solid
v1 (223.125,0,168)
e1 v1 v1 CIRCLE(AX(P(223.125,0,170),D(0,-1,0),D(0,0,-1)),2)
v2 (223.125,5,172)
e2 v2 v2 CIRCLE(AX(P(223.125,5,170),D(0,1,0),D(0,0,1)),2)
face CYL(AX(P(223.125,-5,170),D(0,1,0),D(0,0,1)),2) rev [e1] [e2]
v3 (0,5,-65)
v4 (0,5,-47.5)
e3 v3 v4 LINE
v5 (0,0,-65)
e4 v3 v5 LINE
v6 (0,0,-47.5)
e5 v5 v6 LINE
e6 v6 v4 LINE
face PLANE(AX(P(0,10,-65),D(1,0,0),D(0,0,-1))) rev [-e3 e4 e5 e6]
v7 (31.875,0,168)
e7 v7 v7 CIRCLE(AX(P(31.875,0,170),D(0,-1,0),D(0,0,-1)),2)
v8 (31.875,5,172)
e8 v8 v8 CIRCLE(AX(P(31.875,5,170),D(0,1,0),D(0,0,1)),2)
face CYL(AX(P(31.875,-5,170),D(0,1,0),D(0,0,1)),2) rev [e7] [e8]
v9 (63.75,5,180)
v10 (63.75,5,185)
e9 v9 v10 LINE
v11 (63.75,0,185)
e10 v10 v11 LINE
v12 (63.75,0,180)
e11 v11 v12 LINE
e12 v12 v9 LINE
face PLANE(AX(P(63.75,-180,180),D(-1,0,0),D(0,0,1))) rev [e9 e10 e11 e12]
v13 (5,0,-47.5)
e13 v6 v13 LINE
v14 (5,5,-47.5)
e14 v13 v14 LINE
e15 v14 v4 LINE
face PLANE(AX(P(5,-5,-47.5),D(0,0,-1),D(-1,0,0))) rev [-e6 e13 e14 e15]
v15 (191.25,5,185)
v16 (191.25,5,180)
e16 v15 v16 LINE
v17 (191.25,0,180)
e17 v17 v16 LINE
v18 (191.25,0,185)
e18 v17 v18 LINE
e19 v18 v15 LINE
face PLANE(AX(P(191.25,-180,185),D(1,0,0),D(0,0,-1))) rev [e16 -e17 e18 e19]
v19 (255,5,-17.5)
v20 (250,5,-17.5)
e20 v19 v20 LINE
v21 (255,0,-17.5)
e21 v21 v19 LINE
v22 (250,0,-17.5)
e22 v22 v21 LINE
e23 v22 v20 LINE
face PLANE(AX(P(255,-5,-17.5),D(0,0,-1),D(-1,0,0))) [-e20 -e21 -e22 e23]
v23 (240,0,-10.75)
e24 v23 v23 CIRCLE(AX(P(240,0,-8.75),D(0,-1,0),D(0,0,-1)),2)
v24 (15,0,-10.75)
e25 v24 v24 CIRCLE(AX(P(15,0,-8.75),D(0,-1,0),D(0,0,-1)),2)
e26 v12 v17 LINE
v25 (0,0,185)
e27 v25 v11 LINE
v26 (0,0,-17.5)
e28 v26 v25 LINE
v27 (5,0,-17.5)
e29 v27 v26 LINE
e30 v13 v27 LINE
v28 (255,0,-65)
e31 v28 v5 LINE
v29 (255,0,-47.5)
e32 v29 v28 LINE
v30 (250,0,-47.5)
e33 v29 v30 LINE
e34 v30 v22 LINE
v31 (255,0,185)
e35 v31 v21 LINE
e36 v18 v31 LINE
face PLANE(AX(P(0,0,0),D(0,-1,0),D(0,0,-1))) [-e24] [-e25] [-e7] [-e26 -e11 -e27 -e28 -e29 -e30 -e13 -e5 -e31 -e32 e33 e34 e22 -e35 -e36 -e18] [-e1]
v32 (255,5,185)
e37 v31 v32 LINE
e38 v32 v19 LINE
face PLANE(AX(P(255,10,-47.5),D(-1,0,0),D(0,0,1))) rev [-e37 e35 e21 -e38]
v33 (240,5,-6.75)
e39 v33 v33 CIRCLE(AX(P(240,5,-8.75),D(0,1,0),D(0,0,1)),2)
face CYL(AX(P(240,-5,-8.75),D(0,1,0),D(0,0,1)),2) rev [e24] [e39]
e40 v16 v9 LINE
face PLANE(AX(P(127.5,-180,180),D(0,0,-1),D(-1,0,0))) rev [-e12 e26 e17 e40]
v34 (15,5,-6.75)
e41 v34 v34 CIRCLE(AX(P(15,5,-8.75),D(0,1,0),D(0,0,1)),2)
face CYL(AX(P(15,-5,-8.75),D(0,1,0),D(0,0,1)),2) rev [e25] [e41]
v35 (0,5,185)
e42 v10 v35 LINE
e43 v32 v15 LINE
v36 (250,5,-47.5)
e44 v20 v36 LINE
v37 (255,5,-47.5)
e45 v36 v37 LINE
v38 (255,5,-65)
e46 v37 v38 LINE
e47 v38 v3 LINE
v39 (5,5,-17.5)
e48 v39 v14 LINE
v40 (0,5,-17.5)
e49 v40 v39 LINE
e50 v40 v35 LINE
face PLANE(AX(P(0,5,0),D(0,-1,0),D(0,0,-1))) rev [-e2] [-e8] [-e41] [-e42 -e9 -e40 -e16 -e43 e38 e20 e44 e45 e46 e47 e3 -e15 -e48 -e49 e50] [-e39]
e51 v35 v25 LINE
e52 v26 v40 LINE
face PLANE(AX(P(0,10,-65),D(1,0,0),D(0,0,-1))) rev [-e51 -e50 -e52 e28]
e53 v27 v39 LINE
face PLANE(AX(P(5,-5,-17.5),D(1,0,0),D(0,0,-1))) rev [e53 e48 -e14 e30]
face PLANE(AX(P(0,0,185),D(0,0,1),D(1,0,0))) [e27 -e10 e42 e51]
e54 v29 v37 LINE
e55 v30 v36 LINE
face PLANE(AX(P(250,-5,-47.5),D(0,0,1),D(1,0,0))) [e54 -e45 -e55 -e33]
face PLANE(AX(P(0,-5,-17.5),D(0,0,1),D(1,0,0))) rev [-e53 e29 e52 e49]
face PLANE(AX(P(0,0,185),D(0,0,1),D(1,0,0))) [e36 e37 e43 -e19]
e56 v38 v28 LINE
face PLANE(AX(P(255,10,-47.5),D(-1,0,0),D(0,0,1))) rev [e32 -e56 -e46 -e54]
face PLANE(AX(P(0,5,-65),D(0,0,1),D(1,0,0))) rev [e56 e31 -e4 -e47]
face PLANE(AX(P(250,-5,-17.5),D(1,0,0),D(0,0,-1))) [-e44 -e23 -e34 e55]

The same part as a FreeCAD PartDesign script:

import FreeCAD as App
import Part
import Sketcher
Q = App.Units.Quantity

doc = App.newDocument("Part")
body = doc.addObject("PartDesign::Body", "Body")

sketch1 = body.newObject("Sketcher::SketchObject", "Sketch")
sketch1.AttachmentSupport = (doc.getObject("XZ_Plane"), [""])
sketch1.MapMode = "FlatFace"
sketch1.addGeometry([
    Part.LineSegment(App.Vector(0, -65, 0), App.Vector(0, 0, 0)),
    Part.LineSegment(App.Vector(0, 0, 0), App.Vector(255, 0, 0)),
    Part.LineSegment(App.Vector(255, 0, 0), App.Vector(255, -65, 0)),
    Part.LineSegment(App.Vector(255, -65, 0), App.Vector(0, -65, 0)),
], False)
sketch1.addConstraint([
    Sketcher.Constraint("Coincident", 0, 2, 1, 1),
    Sketcher.Constraint("Coincident", 1, 2, 2, 1),
    Sketcher.Constraint("Coincident", 2, 2, 3, 1),
    Sketcher.Constraint("Coincident", 3, 2, 0, 1),
    Sketcher.Constraint("Vertical", 0),
    Sketcher.Constraint("Horizontal", 1),
    Sketcher.Constraint("Vertical", 2),
    Sketcher.Constraint("Horizontal", 3),
    Sketcher.Constraint("Coincident", 0, 2, -1, 1),
    Sketcher.Constraint("DistanceX", 1, 1, 1, 2, Q("255 mm")),
    Sketcher.Constraint("DistanceY", 0, 1, 0, 2, Q("65 mm")),
])
pad1 = body.newObject("PartDesign::Pad", "Pad")
pad1.Profile = sketch1
pad1.Length = 5
pad1.Reversed = True

sketch2 = body.newObject("Sketcher::SketchObject", "Sketch001")
sketch2.AttachmentSupport = (doc.getObject("XZ_Plane"), [""])
sketch2.MapMode = "FlatFace"
sketch2.AttachmentOffset = App.Placement(App.Vector(0, 0, -5), App.Rotation())
sketch2.addGeometry([
    Part.LineSegment(App.Vector(261, -65, 0), App.Vector(255, -65, 0)),
    Part.LineSegment(App.Vector(255, -65, 0), App.Vector(255, 0, 0)),
    Part.LineSegment(App.Vector(255, 0, 0), App.Vector(261, 0, 0)),
    Part.LineSegment(App.Vector(261, 0, 0), App.Vector(261, -65, 0)),
    Part.LineSegment(App.Vector(-6, -65, 0), App.Vector(-6, 0, 0)),
    Part.LineSegment(App.Vector(-6, 0, 0), App.Vector(0, 0, 0)),
    Part.LineSegment(App.Vector(0, 0, 0), App.Vector(0, -65, 0)),
    Part.LineSegment(App.Vector(0, -65, 0), App.Vector(-6, -65, 0)),
], False)
sketch2.addConstraint([
    Sketcher.Constraint("Coincident", 0, 2, 1, 1),
    Sketcher.Constraint("Coincident", 1, 2, 2, 1),
    Sketcher.Constraint("Coincident", 2, 2, 3, 1),
    Sketcher.Constraint("Coincident", 3, 2, 0, 1),
    Sketcher.Constraint("Coincident", 4, 2, 5, 1),
    Sketcher.Constraint("Coincident", 5, 2, 6, 1),
    Sketcher.Constraint("Coincident", 6, 2, 7, 1),
    Sketcher.Constraint("Coincident", 7, 2, 4, 1),
    Sketcher.Constraint("Horizontal", 0),
    Sketcher.Constraint("Vertical", 1),
    Sketcher.Constraint("Horizontal", 2),
    Sketcher.Constraint("Vertical", 3),
    Sketcher.Constraint("Vertical", 4),
    Sketcher.Constraint("Horizontal", 5),
    Sketcher.Constraint("Vertical", 6),
    Sketcher.Constraint("Horizontal", 7),
    Sketcher.Constraint("Coincident", 5, 2, -1, 1),
    Sketcher.Constraint("PointOnObject", 1, 2, -1),
    Sketcher.Constraint("Horizontal", 3, 2, 6, 2),
    Sketcher.Constraint("Equal", 2, 5),
    Sketcher.Constraint("DistanceX", 0, 2, 0, 1, Q("6 mm")),
    Sketcher.Constraint("DistanceY", 1, 1, 1, 2, Q("65 mm")),
    Sketcher.Constraint("DistanceX", -1, 1, 0, 2, Q("255 mm")),
])
pad2 = body.newObject("PartDesign::Pad", "Pad001")
pad2.Profile = sketch2
pad2.Length = 5

sketch3 = body.newObject("Sketcher::SketchObject", "Sketch002")
sketch3.AttachmentSupport = (doc.getObject("XZ_Plane"), [""])
sketch3.MapMode = "FlatFace"
sketch3.AttachmentOffset = App.Placement(App.Vector(0, 0, -5), App.Rotation())
sketch3.addGeometry([
    Part.LineSegment(App.Vector(250, -47.5, 0), App.Vector(250, -17.5, 0)),
    Part.LineSegment(App.Vector(250, -17.5, 0), App.Vector(255, -17.5, 0)),
    Part.LineSegment(App.Vector(255, -17.5, 0), App.Vector(255, -47.5, 0)),
    Part.LineSegment(App.Vector(255, -47.5, 0), App.Vector(250, -47.5, 0)),
    Part.LineSegment(App.Vector(0, -47.5, 0), App.Vector(0, -17.5, 0)),
    Part.LineSegment(App.Vector(0, -17.5, 0), App.Vector(5, -17.5, 0)),
    Part.LineSegment(App.Vector(5, -17.5, 0), App.Vector(5, -47.5, 0)),
    Part.LineSegment(App.Vector(5, -47.5, 0), App.Vector(0, -47.5, 0)),
], False)
sketch3.addConstraint([
    Sketcher.Constraint("Coincident", 0, 2, 1, 1),
    Sketcher.Constraint("Coincident", 1, 2, 2, 1),
    Sketcher.Constraint("Coincident", 2, 2, 3, 1),
    Sketcher.Constraint("Coincident", 3, 2, 0, 1),
    Sketcher.Constraint("Coincident", 4, 2, 5, 1),
    Sketcher.Constraint("Coincident", 5, 2, 6, 1),
    Sketcher.Constraint("Coincident", 6, 2, 7, 1),
    Sketcher.Constraint("Coincident", 7, 2, 4, 1),
    Sketcher.Constraint("Vertical", 0),
    Sketcher.Constraint("Horizontal", 1),
    Sketcher.Constraint("Vertical", 2),
    Sketcher.Constraint("Horizontal", 3),
    Sketcher.Constraint("Vertical", 4),
    Sketcher.Constraint("Horizontal", 5),
    Sketcher.Constraint("Vertical", 6),
    Sketcher.Constraint("Horizontal", 7),
    Sketcher.Constraint("PointOnObject", 4, 2, -2),
    Sketcher.Constraint("Horizontal", 1, 2, 4, 2),
    Sketcher.Constraint("Horizontal", 3, 2, 6, 2),
    Sketcher.Constraint("Equal", 3, 5),
    Sketcher.Constraint("DistanceX", 1, 1, 1, 2, Q("5 mm")),
    Sketcher.Constraint("DistanceY", 0, 1, 0, 2, Q("30 mm")),
    Sketcher.Constraint("DistanceX", -1, 1, 0, 2, Q("250 mm")),
    Sketcher.Constraint("DistanceY", 0, 2, -1, 1, Q("17.5 mm")),
])
pocket1 = body.newObject("PartDesign::Pocket", "Pocket")
pocket1.Profile = sketch3
pocket1.Length = 10
pocket1.Reversed = True

sketch4 = body.newObject("Sketcher::SketchObject", "Sketch003")
sketch4.AttachmentSupport = (doc.getObject("XZ_Plane"), [""])
sketch4.MapMode = "FlatFace"
sketch4.addGeometry([
    Part.LineSegment(App.Vector(255, -65, 0), App.Vector(261, -65, 0)),
    Part.LineSegment(App.Vector(261, -65, 0), App.Vector(261, 0, 0)),
    Part.LineSegment(App.Vector(261, 0, 0), App.Vector(255, 0, 0)),
    Part.LineSegment(App.Vector(255, 0, 0), App.Vector(255, -65, 0)),
    Part.LineSegment(App.Vector(-6, 0, 0), App.Vector(-6, -65, 0)),
    Part.LineSegment(App.Vector(-6, -65, 0), App.Vector(0, -65, 0)),
    Part.LineSegment(App.Vector(0, -65, 0), App.Vector(0, 0, 0)),
    Part.LineSegment(App.Vector(0, 0, 0), App.Vector(-6, 0, 0)),
], False)
sketch4.addConstraint([
    Sketcher.Constraint("Coincident", 0, 2, 1, 1),
    Sketcher.Constraint("Coincident", 1, 2, 2, 1),
    Sketcher.Constraint("Coincident", 2, 2, 3, 1),
    Sketcher.Constraint("Coincident", 3, 2, 0, 1),
    Sketcher.Constraint("Coincident", 4, 2, 5, 1),
    Sketcher.Constraint("Coincident", 5, 2, 6, 1),
    Sketcher.Constraint("Coincident", 6, 2, 7, 1),
    Sketcher.Constraint("Coincident", 7, 2, 4, 1),
    Sketcher.Constraint("Horizontal", 0),
    Sketcher.Constraint("Vertical", 1),
    Sketcher.Constraint("Horizontal", 2),
    Sketcher.Constraint("Vertical", 3),
    Sketcher.Constraint("Vertical", 4),
    Sketcher.Constraint("Horizontal", 5),
    Sketcher.Constraint("Vertical", 6),
    Sketcher.Constraint("Horizontal", 7),
    Sketcher.Constraint("Coincident", 6, 2, -1, 1),
    Sketcher.Constraint("PointOnObject", 1, 2, -1),
    Sketcher.Constraint("Horizontal", 3, 2, 4, 2),
    Sketcher.Constraint("Equal", 2, 5),
    Sketcher.Constraint("DistanceX", 0, 1, 0, 2, Q("6 mm")),
    Sketcher.Constraint("DistanceY", 1, 1, 1, 2, Q("65 mm")),
    Sketcher.Constraint("DistanceX", -1, 1, 0, 2, Q("261 mm")),
])
pocket2 = body.newObject("PartDesign::Pocket", "Pocket001")
pocket2.Profile = sketch4
pocket2.Length = 10

sketch5 = body.newObject("Sketcher::SketchObject", "Sketch004")
sketch5.AttachmentSupport = (doc.getObject("XY_Plane"), [""])
sketch5.MapMode = "FlatFace"
sketch5.addGeometry([
    Part.LineSegment(App.Vector(0, 5, 0), App.Vector(0, 0, 0)),
    Part.LineSegment(App.Vector(0, 0, 0), App.Vector(255, 0, 0)),
    Part.LineSegment(App.Vector(255, 0, 0), App.Vector(255, 5, 0)),
    Part.LineSegment(App.Vector(255, 5, 0), App.Vector(0, 5, 0)),
], False)
sketch5.addConstraint([
    Sketcher.Constraint("Coincident", 0, 2, 1, 1),
    Sketcher.Constraint("Coincident", 1, 2, 2, 1),
    Sketcher.Constraint("Coincident", 2, 2, 3, 1),
    Sketcher.Constraint("Coincident", 3, 2, 0, 1),
    Sketcher.Constraint("Vertical", 0),
    Sketcher.Constraint("Horizontal", 1),
    Sketcher.Constraint("Vertical", 2),
    Sketcher.Constraint("Horizontal", 3),
    Sketcher.Constraint("Coincident", 0, 2, -1, 1),
    Sketcher.Constraint("DistanceX", 1, 1, 1, 2, Q("255 mm")),
    Sketcher.Constraint("DistanceY", 0, 2, 0, 1, Q("5 mm")),
])
pad3 = body.newObject("PartDesign::Pad", "Pad002")
pad3.Profile = sketch5
pad3.Length = 185

sketch6 = body.newObject("Sketcher::SketchObject", "Sketch005")
sketch6.AttachmentSupport = (doc.getObject("XZ_Plane"), [""])
sketch6.MapMode = "FlatFace"
sketch6.AttachmentOffset = App.Placement(App.Vector(0, 0, -5), App.Rotation())
sketch6.addGeometry([
    Part.LineSegment(App.Vector(191.25, 185, 0), App.Vector(191.25, 180, 0)),
    Part.LineSegment(App.Vector(191.25, 180, 0), App.Vector(63.75, 180, 0)),
    Part.LineSegment(App.Vector(63.75, 180, 0), App.Vector(63.75, 185, 0)),
    Part.LineSegment(App.Vector(63.75, 185, 0), App.Vector(191.25, 185, 0)),
], False)
sketch6.addConstraint([
    Sketcher.Constraint("Coincident", 0, 2, 1, 1),
    Sketcher.Constraint("Coincident", 1, 2, 2, 1),
    Sketcher.Constraint("Coincident", 2, 2, 3, 1),
    Sketcher.Constraint("Coincident", 3, 2, 0, 1),
    Sketcher.Constraint("Vertical", 0),
    Sketcher.Constraint("Horizontal", 1),
    Sketcher.Constraint("Vertical", 2),
    Sketcher.Constraint("Horizontal", 3),
    Sketcher.Constraint("DistanceY", 0, 2, 0, 1, Q("5 mm")),
    Sketcher.Constraint("DistanceX", 1, 2, 1, 1, Q("127.5 mm")),
    Sketcher.Constraint("DistanceY", -1, 1, 0, 2, Q("180 mm")),
    Sketcher.Constraint("DistanceX", -1, 1, 0, 2, Q("191.25 mm")),
])
pocket3 = body.newObject("PartDesign::Pocket", "Pocket002")
pocket3.Profile = sketch6
pocket3.Length = 185
pocket3.Reversed = True

sketch7 = body.newObject("Sketcher::SketchObject", "Sketch006")
sketch7.AttachmentSupport = (doc.getObject("XZ_Plane"), [""])
sketch7.MapMode = "FlatFace"
sketch7.AttachmentOffset = App.Placement(App.Vector(0, 0, -5), App.Rotation())
sketch7.addGeometry([
    Part.Circle(App.Vector(223.125, 170, 0), App.Vector(0, 0, 1), 1.5),
    Part.Circle(App.Vector(31.875, 170, 0), App.Vector(0, 0, 1), 1.5),
], False)
sketch7.addConstraint([
    Sketcher.Constraint("Equal", 0, 1),
    Sketcher.Constraint("Horizontal", 0, 3, 1, 3),
    Sketcher.Constraint("Diameter", 0, Q("3 mm")),
    Sketcher.Constraint("DistanceY", -1, 1, 0, 3, Q("170 mm")),
    Sketcher.Constraint("DistanceX", 1, 3, 0, 3, Q("191.25 mm")),
    Sketcher.Constraint("DistanceX", -1, 1, 0, 3, Q("223.125 mm")),
])
pocket4 = body.newObject("PartDesign::Pocket", "Pocket003")
pocket4.Profile = sketch7
pocket4.Length = 185
pocket4.Reversed = True

sketch8 = body.newObject("Sketcher::SketchObject", "Sketch007")
sketch8.AttachmentSupport = (doc.getObject("XZ_Plane"), [""])
sketch8.MapMode = "FlatFace"
sketch8.AttachmentOffset = App.Placement(App.Vector(0, 0, -5), App.Rotation())
sketch8.addGeometry([
    Part.Circle(App.Vector(240, -8.75, 0), App.Vector(0, 0, 1), 1.5),
    Part.Circle(App.Vector(15, -8.75, 0), App.Vector(0, 0, 1), 1.5),
], False)
sketch8.addConstraint([
    Sketcher.Constraint("Equal", 0, 1),
    Sketcher.Constraint("Horizontal", 0, 3, 1, 3),
    Sketcher.Constraint("Diameter", 0, Q("3 mm")),
    Sketcher.Constraint("DistanceX", -1, 1, 0, 3, Q("240 mm")),
    Sketcher.Constraint("DistanceX", -1, 1, 1, 3, Q("15 mm")),
    Sketcher.Constraint("DistanceY", 0, 3, -1, 1, Q("8.75 mm")),
])
pocket5 = body.newObject("PartDesign::Pocket", "Pocket004")
pocket5.Profile = sketch8
pocket5.Length = 185
pocket5.Reversed = True

sketch9 = body.newObject("Sketcher::SketchObject", "Sketch008")
sketch9.AttachmentSupport = (doc.getObject("XZ_Plane"), [""])
sketch9.MapMode = "FlatFace"
sketch9.AttachmentOffset = App.Placement(App.Vector(0, 0, -5), App.Rotation())
sketch9.addGeometry([
    Part.Circle(App.Vector(240, -8.75, 0), App.Vector(0, 0, 1), 2),
    Part.Circle(App.Vector(15, -8.75, 0), App.Vector(0, 0, 1), 2),
    Part.Circle(App.Vector(31.875, 170, 0), App.Vector(0, 0, 1), 2),
    Part.Circle(App.Vector(223.125, 170, 0), App.Vector(0, 0, 1), 2),
], False)
sketch9.addConstraint([
    Sketcher.Constraint("Equal", 0, 1),
    Sketcher.Constraint("Equal", 1, 2),
    Sketcher.Constraint("Equal", 2, 3),
    Sketcher.Constraint("Horizontal", 0, 3, 1, 3),
    Sketcher.Constraint("Horizontal", 2, 3, 3, 3),
    Sketcher.Constraint("Diameter", 0, Q("4 mm")),
    Sketcher.Constraint("DistanceX", -1, 1, 0, 3, Q("240 mm")),
    Sketcher.Constraint("DistanceX", -1, 1, 1, 3, Q("15 mm")),
    Sketcher.Constraint("DistanceY", -1, 1, 2, 3, Q("170 mm")),
    Sketcher.Constraint("DistanceY", 0, 3, -1, 1, Q("8.75 mm")),
    Sketcher.Constraint("DistanceX", 2, 3, 3, 3, Q("191.25 mm")),
    Sketcher.Constraint("DistanceX", -1, 1, 2, 3, Q("31.875 mm")),
])
pocket6 = body.newObject("PartDesign::Pocket", "Pocket005")
pocket6.Profile = sketch9
pocket6.Length = 10
pocket6.Reversed = True

doc.recompute()
